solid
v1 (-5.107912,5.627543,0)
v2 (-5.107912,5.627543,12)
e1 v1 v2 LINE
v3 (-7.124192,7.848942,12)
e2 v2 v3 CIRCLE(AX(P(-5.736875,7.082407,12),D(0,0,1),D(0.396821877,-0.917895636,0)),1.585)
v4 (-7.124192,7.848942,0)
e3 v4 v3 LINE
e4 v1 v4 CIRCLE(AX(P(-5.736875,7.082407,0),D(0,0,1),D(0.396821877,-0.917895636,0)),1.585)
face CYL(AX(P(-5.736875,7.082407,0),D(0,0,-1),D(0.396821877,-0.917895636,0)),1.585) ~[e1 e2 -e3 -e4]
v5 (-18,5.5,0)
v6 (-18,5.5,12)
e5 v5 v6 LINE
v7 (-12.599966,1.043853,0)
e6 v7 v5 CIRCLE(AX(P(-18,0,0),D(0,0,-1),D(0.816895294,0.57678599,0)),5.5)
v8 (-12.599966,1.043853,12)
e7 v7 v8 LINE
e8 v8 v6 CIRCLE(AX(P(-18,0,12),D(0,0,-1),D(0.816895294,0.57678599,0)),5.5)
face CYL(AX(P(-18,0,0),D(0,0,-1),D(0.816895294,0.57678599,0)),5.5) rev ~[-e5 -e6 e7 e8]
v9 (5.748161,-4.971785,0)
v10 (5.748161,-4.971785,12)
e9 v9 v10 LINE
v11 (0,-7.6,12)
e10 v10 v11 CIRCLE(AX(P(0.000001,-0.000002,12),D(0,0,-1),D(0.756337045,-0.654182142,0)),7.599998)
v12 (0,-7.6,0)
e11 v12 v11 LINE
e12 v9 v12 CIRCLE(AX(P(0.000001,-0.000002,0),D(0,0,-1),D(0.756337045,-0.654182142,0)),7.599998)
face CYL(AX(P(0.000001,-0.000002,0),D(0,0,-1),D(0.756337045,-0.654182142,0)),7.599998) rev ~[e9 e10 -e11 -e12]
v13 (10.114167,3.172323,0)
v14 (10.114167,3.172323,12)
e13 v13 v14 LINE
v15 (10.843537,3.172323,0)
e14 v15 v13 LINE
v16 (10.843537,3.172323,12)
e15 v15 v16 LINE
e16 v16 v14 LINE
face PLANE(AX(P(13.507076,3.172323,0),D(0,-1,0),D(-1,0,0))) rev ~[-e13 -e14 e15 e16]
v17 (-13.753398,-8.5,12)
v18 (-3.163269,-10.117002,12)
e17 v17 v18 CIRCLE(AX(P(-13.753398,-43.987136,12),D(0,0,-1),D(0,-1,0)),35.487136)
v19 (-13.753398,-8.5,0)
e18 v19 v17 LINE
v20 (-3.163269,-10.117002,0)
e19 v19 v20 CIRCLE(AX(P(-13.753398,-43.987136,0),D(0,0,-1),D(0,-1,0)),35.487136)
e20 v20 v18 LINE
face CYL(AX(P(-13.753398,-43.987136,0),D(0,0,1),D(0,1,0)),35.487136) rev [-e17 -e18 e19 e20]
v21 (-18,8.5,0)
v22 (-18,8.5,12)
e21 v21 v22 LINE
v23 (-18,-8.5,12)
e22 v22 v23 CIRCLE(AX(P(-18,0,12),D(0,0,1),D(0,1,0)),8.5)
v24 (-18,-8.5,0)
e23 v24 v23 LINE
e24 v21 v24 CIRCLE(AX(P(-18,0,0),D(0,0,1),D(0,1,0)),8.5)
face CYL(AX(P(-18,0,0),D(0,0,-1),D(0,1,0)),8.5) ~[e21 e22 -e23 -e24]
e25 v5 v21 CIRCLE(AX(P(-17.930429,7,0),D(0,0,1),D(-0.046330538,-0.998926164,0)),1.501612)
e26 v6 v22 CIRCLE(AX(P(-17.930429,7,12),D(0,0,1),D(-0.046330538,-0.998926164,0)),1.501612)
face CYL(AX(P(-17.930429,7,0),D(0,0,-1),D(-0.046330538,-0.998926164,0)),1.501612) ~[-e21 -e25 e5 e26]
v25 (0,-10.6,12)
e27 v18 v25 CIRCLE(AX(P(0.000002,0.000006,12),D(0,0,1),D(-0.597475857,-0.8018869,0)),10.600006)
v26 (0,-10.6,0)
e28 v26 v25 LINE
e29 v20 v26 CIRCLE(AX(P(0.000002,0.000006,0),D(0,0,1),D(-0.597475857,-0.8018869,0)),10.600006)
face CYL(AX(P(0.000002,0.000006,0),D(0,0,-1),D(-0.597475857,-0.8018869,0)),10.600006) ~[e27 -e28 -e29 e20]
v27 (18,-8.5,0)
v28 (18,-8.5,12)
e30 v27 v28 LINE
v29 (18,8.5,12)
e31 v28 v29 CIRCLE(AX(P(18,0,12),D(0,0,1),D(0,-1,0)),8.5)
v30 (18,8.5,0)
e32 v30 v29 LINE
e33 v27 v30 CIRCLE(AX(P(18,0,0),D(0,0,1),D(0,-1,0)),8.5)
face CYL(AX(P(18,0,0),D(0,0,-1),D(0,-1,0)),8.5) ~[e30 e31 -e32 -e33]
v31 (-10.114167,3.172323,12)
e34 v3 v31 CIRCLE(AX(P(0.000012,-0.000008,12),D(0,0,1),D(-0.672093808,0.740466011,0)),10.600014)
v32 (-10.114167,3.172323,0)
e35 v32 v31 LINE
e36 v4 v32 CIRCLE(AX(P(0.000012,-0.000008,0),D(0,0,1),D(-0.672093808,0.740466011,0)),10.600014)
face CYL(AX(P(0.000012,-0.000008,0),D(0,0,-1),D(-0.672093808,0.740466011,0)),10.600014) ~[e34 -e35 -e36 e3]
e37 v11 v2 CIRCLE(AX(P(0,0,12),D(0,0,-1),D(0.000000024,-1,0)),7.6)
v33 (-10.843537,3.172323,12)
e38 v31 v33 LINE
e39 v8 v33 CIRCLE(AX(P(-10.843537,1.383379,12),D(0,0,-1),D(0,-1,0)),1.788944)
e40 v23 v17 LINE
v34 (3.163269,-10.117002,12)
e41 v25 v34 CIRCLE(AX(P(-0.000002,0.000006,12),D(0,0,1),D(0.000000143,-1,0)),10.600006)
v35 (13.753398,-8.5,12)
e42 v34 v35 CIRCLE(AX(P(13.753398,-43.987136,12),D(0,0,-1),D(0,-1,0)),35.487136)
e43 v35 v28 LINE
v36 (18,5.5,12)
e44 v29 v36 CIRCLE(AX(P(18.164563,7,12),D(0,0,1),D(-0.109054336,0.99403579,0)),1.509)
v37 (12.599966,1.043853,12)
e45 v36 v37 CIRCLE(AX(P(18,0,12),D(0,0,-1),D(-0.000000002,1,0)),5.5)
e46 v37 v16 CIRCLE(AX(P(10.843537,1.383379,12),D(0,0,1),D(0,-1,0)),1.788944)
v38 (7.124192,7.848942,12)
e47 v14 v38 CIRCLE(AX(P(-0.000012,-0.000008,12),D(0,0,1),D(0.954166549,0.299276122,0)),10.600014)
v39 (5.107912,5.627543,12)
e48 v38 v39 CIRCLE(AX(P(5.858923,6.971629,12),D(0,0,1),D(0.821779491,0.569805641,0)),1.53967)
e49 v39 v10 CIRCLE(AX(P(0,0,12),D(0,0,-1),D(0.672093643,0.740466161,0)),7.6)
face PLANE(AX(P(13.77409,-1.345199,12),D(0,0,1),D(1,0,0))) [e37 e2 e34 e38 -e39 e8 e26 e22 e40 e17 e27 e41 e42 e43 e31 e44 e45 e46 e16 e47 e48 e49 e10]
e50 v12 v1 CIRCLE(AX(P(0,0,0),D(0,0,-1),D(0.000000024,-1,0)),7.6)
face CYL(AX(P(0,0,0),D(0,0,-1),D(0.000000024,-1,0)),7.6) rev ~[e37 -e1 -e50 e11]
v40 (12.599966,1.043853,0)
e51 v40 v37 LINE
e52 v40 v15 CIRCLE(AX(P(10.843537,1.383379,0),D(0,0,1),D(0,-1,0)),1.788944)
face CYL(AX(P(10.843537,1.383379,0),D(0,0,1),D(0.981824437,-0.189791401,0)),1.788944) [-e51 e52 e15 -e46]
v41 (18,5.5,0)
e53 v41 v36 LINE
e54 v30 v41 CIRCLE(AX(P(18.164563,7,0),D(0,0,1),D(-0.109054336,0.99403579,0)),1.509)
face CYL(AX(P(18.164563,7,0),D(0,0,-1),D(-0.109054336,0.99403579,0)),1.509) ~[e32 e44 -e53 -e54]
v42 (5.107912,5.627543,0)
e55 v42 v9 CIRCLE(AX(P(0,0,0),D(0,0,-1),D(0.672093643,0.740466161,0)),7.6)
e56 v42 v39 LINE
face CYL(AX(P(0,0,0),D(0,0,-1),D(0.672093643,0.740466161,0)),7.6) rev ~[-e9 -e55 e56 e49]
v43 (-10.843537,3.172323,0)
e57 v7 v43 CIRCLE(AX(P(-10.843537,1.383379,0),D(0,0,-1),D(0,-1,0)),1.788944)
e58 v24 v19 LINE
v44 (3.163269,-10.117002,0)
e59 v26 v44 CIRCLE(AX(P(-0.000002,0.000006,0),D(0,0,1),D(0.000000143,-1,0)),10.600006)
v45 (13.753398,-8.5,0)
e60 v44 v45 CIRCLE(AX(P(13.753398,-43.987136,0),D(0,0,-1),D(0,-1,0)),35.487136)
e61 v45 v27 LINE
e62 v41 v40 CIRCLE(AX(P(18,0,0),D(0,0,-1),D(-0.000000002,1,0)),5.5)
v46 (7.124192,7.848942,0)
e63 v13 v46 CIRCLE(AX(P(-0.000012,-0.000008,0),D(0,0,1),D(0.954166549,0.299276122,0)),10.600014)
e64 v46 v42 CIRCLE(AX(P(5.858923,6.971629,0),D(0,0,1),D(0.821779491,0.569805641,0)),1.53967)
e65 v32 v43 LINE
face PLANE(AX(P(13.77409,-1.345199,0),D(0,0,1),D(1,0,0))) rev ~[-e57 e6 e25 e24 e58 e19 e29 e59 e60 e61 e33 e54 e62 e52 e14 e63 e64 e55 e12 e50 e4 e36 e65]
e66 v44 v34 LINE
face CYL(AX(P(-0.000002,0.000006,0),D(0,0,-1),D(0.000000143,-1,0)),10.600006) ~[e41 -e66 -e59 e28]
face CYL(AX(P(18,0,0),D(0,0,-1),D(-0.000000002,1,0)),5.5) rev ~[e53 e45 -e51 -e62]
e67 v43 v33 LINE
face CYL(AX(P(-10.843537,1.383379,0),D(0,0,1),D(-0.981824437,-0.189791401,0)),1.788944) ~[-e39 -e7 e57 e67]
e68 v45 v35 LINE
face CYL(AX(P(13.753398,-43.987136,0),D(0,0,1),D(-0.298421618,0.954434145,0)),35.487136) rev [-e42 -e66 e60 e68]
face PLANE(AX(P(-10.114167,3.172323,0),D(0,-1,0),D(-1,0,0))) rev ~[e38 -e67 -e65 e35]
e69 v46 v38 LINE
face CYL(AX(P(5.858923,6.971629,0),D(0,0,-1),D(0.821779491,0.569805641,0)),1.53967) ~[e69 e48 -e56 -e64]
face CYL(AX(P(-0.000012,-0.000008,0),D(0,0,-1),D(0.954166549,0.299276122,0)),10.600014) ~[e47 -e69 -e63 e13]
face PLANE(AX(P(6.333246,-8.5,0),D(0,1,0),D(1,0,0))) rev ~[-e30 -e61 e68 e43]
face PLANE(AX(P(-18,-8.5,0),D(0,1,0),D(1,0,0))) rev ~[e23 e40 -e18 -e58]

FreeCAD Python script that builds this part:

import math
import FreeCAD as App
import Part
import Sketcher
from FreeCAD import Vector
Q = App.Units.Quantity


def edges_at(feature, points):
    """Names of the edges that pass closest to the given points."""
    edges = feature.Shape.Edges
    near = lambda p: min(range(len(edges)), key=lambda i: edges[i].distToShape(Part.Vertex(*p))[0])
    return sorted({f"Edge{near(p) + 1}" for p in points})

doc = App.newDocument("Part")
body = doc.addObject("PartDesign::Body", "Body")

sketch1 = body.newObject("Sketcher::SketchObject", "Sketch")
sketch1.AttachmentSupport = (doc.getObject("XY_Plane"), [""])
sketch1.MapMode = "FlatFace"
sketch1.addGeometry([
    Part.ArcOfCircle(Part.Circle(Vector(-0.000002, 0.000006, 0), Vector(0, 0, 1), 10.600006), math.radians(-89.999992), math.radians(-53.310668)),
    Part.LineSegment(Vector(6.333246, -8.5, 0), Vector(18, -8.5, 0)),
    Part.ArcOfCircle(Part.Circle(Vector(18, 0, 0), Vector(0, 0, 1), 8.5), math.radians(-90), math.radians(90)),
    Part.ArcOfCircle(Part.Circle(Vector(18.164563, 7, 0), Vector(0, 0, 1), 1.509), math.radians(96.260805), math.radians(263.739195)),
    Part.ArcOfCircle(Part.Circle(Vector(18, 0, 0), Vector(0, 0, 1), 5.5), math.radians(144.775198), math.radians(450)),
    Part.LineSegment(Vector(13.507076, 3.172323, 0), Vector(10.114167, 3.172323, 0)),
    Part.ArcOfCircle(Part.Circle(Vector(-0.000012, -0.000008, 0), Vector(0, 0, 1), 10.600014), math.radians(17.414131), math.radians(47.771128)),
    Part.ArcOfCircle(Part.Circle(Vector(5.858923, 6.971629, 0), Vector(0, 0, 1), 1.53967), math.radians(34.736674), math.radians(240.805647)),
    Part.ArcOfCircle(Part.Circle(Vector(0, 0, 0), Vector(0, 0, 1), 7.6), math.radians(-40.857674), math.radians(47.77114)),
    Part.ArcOfCircle(Part.Circle(Vector(0.000001, -0.000002, 0), Vector(0, 0, 1), 7.599998), math.radians(-90.000008), math.radians(-40.857665)),
    Part.ArcOfCircle(Part.Circle(Vector(0, 0, 0), Vector(0, 0, 1), 7.6), math.radians(132.22886), math.radians(270.000001)),
    Part.ArcOfCircle(Part.Circle(Vector(-5.736875, 7.082407, 0), Vector(0, 0, 1), 1.585), math.radians(-66.620352), math.radians(151.078031)),
    Part.ArcOfCircle(Part.Circle(Vector(0.000012, -0.000008, 0), Vector(0, 0, 1), 10.600014), math.radians(132.228872), math.radians(162.585869)),
    Part.LineSegment(Vector(-10.114167, 3.172323, 0), Vector(-13.507076, 3.172323, 0)),
    Part.ArcOfCircle(Part.Circle(Vector(-18, 0, 0), Vector(0, 0, 1), 5.5), math.radians(90), math.radians(395.224802)),
    Part.ArcOfCircle(Part.Circle(Vector(-17.930429, 7, 0), Vector(0, 0, 1), 1.501612), math.radians(-92.655495), math.radians(92.655495)),
    Part.ArcOfCircle(Part.Circle(Vector(-18, 0, 0), Vector(0, 0, 1), 8.5), math.radians(90), math.radians(270)),
    Part.LineSegment(Vector(-18, -8.5, 0), Vector(-6.333246, -8.5, 0)),
    Part.ArcOfCircle(Part.Circle(Vector(0.000002, 0.000006, 0), Vector(0, 0, 1), 10.600006), math.radians(-126.689332), math.radians(-90.000008)),
], False)
sketch1.addConstraint([
    Sketcher.Constraint("Coincident", 0, 2, 1, 1),
    Sketcher.Constraint("Coincident", 1, 2, 2, 1),
    Sketcher.Constraint("Coincident", 2, 2, 3, 1),
    Sketcher.Constraint("Coincident", 3, 2, 4, 2),
    Sketcher.Constraint("Coincident", 4, 1, 5, 1),
    Sketcher.Constraint("Coincident", 5, 2, 6, 1),
    Sketcher.Constraint("Coincident", 6, 2, 7, 1),
    Sketcher.Constraint("Coincident", 7, 2, 8, 2),
    Sketcher.Constraint("Coincident", 8, 1, 9, 2),
    Sketcher.Constraint("Coincident", 9, 1, 10, 2),
    Sketcher.Constraint("Coincident", 10, 1, 11, 1),
    Sketcher.Constraint("Coincident", 11, 2, 12, 1),
    Sketcher.Constraint("Coincident", 12, 2, 13, 1),
    Sketcher.Constraint("Coincident", 13, 2, 14, 2),
    Sketcher.Constraint("Coincident", 14, 1, 15, 1),
    Sketcher.Constraint("Coincident", 15, 2, 16, 1),
    Sketcher.Constraint("Coincident", 16, 2, 17, 1),
    Sketcher.Constraint("Coincident", 17, 2, 18, 1),
    Sketcher.Constraint("Coincident", 18, 2, 0, 1),
    Sketcher.Constraint("Horizontal", 1),
    Sketcher.Constraint("Horizontal", 5),
    Sketcher.Constraint("Horizontal", 13),
    Sketcher.Constraint("Horizontal", 17),
    Sketcher.Constraint("Coincident", 0, 3, -1, 1),
    Sketcher.Constraint("Coincident", 8, 3, -1, 1),
    Sketcher.Constraint("Coincident", 9, 3, -1, 1),
    Sketcher.Constraint("Coincident", 10, 3, -1, 1),
    Sketcher.Constraint("Coincident", 18, 3, -1, 1),
    Sketcher.Constraint("Coincident", 4, 3, 2, 3),
    Sketcher.Constraint("Coincident", 16, 3, 14, 3),
    Sketcher.Constraint("PointOnObject", 2, 3, -1),
    Sketcher.Constraint("PointOnObject", 14, 3, -1),
    Sketcher.Constraint("PointOnObject", 9, 1, -2),
    Sketcher.Constraint("PointOnObject", 18, 2, -2),
    Sketcher.Constraint("Radius", 2, Q("8.5 mm")),
    Sketcher.Constraint("Radius", 4, Q("5.5 mm")),
    Sketcher.Constraint("Radius", 8, Q("7.6 mm")),
    Sketcher.Constraint("Radius", 14, Q("5.5 mm")),
    Sketcher.Constraint("Radius", 16, Q("8.5 mm")),
    Sketcher.Constraint("DistanceX", -1, 1, 2, 3, Q("18 mm")),
    Sketcher.Constraint("DistanceY", -1, 1, 3, 3, Q("7 mm")),
    Sketcher.Constraint("DistanceX", 14, 3, -1, 1, Q("18 mm")),
    Sketcher.Constraint("DistanceY", -1, 1, 15, 3, Q("7 mm")),
    Sketcher.Constraint("DistanceX", -1, 1, 1, 2, Q("18 mm")),
    Sketcher.Constraint("DistanceX", -1, 1, 2, 2, Q("18 mm")),
    Sketcher.Constraint("DistanceX", 14, 1, -1, 1, Q("18 mm")),
    Sketcher.Constraint("DistanceX", 16, 2, -1, 1, Q("18 mm")),
    Sketcher.Constraint("Radius", 3, Q("1.509 mm")),
    Sketcher.Constraint("Radius", 11, Q("1.585 mm")),
    Sketcher.Constraint("DistanceY", 18, 2, 9, 1, Q("3 mm")),
    Sketcher.Constraint("Radius", 7, Q("1.53967 mm")),
    Sketcher.Constraint("Radius", 6, Q("10.600014 mm")),
    Sketcher.Constraint("Radius", 12, Q("10.600014 mm")),
    Sketcher.Constraint("Radius", 15, Q("1.501612 mm")),
    Sketcher.Constraint("DistanceX", 5, 2, 5, 1, Q("3.392909 mm")),
    Sketcher.Constraint("DistanceX", 13, 2, 13, 1, Q("3.392909 mm")),
    Sketcher.Constraint("DistanceY", 0, 3, 11, 3, Q("7.082402 mm")),
    Sketcher.Constraint("DistanceY", 7, 2, 6, 2, Q("2.221399 mm")),
    Sketcher.Constraint("DistanceX", 10, 1, 6, 3, Q("5.1079 mm")),
    Sketcher.Constraint("DistanceY", 10, 1, 11, 2, Q("2.221399 mm")),
    Sketcher.Constraint("DistanceY", -1, 1, 7, 3, Q("6.971629 mm")),
    Sketcher.Constraint("DistanceY", -1, 1, 6, 2, Q("7.848942 mm")),
    Sketcher.Constraint("DistanceX", -1, 1, 8, 1, Q("5.748161 mm")),
    Sketcher.Constraint("DistanceX", 6, 3, 2, 3, Q("18.000012 mm")),
    Sketcher.Constraint("DistanceY", 0, 2, 12, 3, Q("8.499992 mm")),
])
pad1 = body.newObject("PartDesign::Pad", "Pad")
pad1.Profile = sketch1
pad1.Length = 12
doc.recompute()

fillet = body.newObject("PartDesign::Fillet", "Fillet")
fillet.Base = (pad1, edges_at(pad1, [(-6.333, -8.5, 6), (6.333, -8.5, 6)]))
fillet.Radius = 35.487136
doc.recompute()

fillet2 = body.newObject("PartDesign::Fillet", "Fillet001")
fillet2.Base = (fillet, edges_at(fillet, [(-13.507, 3.172, 6), (13.507, 3.172, 6)]))
fillet2.Radius = 1.788944

doc.recompute()
